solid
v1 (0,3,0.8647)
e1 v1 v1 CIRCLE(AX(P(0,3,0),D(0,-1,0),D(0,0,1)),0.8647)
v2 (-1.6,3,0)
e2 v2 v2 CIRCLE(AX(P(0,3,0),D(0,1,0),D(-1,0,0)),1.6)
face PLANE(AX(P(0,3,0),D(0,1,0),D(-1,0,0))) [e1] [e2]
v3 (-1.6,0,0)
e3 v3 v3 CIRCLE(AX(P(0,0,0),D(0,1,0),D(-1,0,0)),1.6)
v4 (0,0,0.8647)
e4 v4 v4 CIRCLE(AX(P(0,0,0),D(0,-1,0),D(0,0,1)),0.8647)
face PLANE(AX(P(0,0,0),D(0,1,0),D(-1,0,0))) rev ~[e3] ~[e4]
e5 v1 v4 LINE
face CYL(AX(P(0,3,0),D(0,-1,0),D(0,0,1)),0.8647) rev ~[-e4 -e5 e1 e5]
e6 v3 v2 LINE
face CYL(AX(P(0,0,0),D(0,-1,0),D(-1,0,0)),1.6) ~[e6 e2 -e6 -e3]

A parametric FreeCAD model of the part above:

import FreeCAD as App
import Part
import Sketcher
from FreeCAD import Vector
Q = App.Units.Quantity

doc = App.newDocument("Part")
params = doc.addObject("Spreadsheet::Sheet", "Params")
for row, (alias, value) in enumerate([
    ("sketch1_diameter", "3.2 mm"),
    ("pad1_length", "3 mm"),
    ("hole_diameter", "1.7294 mm"),
    ("hole_depth", "3 mm"),
], start=1):
    params.set(f"A{row}", alias)
    params.set(f"B{row}", "=" + value)
    params.setAlias(f"B{row}", alias)

body = doc.addObject("PartDesign::Body", "Body")

# Sketch on XZ plane
sketch1 = doc.addObject("Sketcher::SketchObject", "Sketch")
body.addObject(sketch1)
sketch1.AttachmentSupport = (doc.XZ_Plane, [""])
sketch1.MapMode = "FlatFace"
sketch1.addGeometry(Part.Circle(Vector(0, 0, 0), Vector(0, 0, 1), 1.6), False)
sketch1.addConstraint(Sketcher.Constraint("Coincident", 0, 3, -1, 1))
sketch1.addConstraint(Sketcher.Constraint("Diameter", 0, Q("3.2 mm")))
sketch1.setExpression("Constraints[1]", "Params.sketch1_diameter")
pad1 = doc.addObject("PartDesign::Pad", "Pad")
body.addObject(pad1)
pad1.Profile = sketch1
pad1.setExpression("Length", "Params.pad1_length")
pad1.Reversed = True

# Sketch on XZ plane
sketch2 = doc.addObject("Sketcher::SketchObject", "Sketch001")
body.addObject(sketch2)
sketch2.AttachmentSupport = (doc.XZ_Plane, [""])
sketch2.MapMode = "FlatFace"
sketch2.AttachmentOffset = App.Placement(Vector(0, 0, -3), App.Rotation())
sketch2.addGeometry(Part.Circle(Vector(0, 0, 0), Vector(0, 0, 1), 0.9), False)
sketch2.addConstraint(Sketcher.Constraint("Coincident", 0, 3, -1, 1))
sketch2.addConstraint(Sketcher.Constraint("Diameter", 0, Q("1.7294 mm")))
doc.recompute()
hole = doc.addObject("PartDesign::Hole", "Hole")
body.addObject(hole)
hole.Profile = sketch2
hole.ThreadType = "None"
hole.setExpression("Diameter", "Params.hole_diameter")
hole.DepthType = "Dimension"
hole.setExpression("Depth", "Params.hole_depth")
hole.DrillPoint = "Angled"
hole.DrillPointAngle = 118
hole.Reversed = True

doc.recompute()
